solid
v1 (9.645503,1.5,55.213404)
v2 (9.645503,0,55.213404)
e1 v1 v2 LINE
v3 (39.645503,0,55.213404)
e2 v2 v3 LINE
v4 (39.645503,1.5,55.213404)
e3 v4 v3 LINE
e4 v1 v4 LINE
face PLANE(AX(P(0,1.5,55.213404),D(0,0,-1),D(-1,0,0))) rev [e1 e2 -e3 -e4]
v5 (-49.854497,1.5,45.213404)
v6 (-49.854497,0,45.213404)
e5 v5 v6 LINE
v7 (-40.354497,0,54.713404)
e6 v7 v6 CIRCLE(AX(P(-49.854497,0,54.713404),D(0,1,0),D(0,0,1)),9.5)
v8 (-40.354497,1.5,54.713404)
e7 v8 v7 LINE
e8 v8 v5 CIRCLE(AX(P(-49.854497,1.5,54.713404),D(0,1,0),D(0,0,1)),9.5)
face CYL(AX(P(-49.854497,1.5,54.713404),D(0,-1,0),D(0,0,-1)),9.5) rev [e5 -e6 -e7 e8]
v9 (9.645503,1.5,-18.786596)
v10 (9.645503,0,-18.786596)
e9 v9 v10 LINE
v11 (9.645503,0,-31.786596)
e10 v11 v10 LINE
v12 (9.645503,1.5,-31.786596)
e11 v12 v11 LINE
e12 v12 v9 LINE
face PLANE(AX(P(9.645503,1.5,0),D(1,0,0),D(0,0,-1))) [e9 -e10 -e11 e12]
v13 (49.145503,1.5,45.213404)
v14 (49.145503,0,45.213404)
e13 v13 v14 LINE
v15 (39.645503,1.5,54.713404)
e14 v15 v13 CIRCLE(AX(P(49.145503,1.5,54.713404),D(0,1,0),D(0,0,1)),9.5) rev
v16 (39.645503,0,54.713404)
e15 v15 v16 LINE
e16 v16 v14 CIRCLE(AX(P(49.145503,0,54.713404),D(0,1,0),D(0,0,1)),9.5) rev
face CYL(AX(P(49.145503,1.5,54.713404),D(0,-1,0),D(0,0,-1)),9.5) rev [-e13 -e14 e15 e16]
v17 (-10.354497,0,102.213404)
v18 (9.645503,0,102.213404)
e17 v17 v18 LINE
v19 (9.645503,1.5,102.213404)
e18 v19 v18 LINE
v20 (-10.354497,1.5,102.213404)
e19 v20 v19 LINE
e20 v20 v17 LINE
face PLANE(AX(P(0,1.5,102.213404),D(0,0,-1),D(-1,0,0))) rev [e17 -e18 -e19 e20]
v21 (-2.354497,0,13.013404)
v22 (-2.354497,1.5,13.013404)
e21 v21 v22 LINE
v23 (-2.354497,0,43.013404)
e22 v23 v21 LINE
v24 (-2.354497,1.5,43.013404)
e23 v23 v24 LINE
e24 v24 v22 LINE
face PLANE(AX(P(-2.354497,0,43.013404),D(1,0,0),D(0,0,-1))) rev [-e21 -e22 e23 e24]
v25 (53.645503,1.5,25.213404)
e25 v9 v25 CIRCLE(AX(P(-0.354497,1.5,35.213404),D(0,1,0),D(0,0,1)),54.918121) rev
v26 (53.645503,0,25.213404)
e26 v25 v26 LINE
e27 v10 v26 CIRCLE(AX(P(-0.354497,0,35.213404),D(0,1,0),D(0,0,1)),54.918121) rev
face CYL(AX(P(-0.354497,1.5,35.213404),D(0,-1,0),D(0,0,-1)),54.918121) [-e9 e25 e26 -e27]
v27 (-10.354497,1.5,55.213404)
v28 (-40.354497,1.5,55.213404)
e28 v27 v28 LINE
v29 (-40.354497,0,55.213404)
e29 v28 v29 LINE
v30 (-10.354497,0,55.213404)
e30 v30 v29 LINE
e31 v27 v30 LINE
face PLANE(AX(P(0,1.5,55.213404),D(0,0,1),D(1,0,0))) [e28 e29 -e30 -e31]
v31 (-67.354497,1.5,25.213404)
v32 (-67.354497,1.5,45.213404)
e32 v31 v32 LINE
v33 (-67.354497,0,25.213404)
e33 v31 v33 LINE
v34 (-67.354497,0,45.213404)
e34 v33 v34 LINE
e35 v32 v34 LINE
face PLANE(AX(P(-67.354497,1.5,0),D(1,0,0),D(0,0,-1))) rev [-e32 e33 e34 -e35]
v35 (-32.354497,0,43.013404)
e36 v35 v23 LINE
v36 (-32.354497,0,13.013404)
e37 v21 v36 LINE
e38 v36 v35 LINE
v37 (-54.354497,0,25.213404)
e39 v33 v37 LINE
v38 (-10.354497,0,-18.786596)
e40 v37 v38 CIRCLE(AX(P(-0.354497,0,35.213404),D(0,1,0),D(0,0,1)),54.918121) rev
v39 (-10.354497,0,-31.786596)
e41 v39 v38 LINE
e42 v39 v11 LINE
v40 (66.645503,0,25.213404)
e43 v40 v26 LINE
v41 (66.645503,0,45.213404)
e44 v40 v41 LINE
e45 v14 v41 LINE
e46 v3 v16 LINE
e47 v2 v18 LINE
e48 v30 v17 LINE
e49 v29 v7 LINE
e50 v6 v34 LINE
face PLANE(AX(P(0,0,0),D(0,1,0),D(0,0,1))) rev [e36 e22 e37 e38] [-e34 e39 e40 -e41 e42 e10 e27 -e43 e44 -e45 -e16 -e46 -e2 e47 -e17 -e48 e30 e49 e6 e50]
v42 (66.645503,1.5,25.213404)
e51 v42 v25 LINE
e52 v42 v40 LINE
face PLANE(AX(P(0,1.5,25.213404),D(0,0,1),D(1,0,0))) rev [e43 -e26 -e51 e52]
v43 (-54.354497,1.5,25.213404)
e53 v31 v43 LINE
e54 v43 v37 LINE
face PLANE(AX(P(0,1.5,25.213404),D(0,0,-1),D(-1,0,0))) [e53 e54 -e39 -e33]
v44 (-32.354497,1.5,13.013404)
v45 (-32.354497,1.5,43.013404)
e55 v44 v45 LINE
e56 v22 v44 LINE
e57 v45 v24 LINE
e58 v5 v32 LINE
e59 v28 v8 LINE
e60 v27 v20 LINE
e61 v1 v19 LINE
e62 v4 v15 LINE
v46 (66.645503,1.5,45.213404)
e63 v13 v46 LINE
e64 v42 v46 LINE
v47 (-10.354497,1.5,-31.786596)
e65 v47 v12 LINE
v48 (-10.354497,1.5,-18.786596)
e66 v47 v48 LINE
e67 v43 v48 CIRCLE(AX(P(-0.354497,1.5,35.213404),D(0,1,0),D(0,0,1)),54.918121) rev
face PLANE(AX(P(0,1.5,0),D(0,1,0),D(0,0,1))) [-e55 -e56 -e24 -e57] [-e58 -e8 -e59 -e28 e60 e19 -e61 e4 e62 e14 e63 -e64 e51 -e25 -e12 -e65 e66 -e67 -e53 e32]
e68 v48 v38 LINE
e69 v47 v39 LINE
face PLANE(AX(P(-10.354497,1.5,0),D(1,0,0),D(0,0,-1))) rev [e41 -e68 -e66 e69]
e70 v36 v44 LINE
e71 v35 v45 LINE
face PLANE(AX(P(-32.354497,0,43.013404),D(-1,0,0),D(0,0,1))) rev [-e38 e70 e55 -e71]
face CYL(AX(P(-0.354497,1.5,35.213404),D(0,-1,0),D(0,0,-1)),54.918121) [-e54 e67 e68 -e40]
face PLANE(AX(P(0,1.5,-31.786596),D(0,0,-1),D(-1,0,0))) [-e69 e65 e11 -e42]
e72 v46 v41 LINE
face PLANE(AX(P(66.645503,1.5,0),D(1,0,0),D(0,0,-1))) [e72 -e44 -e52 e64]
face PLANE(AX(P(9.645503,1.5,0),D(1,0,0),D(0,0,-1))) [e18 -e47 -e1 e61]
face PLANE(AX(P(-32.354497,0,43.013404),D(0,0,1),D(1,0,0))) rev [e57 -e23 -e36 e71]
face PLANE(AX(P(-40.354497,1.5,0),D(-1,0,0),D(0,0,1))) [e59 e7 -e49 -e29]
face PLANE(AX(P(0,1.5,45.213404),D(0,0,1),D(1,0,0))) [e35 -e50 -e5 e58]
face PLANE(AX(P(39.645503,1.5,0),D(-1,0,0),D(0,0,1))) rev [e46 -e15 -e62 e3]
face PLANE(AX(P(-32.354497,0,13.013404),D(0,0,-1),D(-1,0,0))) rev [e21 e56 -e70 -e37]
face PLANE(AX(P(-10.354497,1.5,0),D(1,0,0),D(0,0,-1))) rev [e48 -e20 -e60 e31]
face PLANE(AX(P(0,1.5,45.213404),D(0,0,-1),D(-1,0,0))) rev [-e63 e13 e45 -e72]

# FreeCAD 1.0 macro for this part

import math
import FreeCAD as App
import Part
import Sketcher

doc = App.newDocument("Part")
body = doc.addObject("PartDesign::Body", "Body")

# Sketch on XZ plane
sketch1 = body.newObject("Sketcher::SketchObject", "Sketch")
sketch1.AttachmentSupport = (doc.getObject("XZ_Plane"), [""])
sketch1.MapMode = "FlatFace"
sketch1.addGeometry(Part.LineSegment(App.Vector(-10.354497, 55.213404, 0), App.Vector(-10.354497, 102.213404, 0)), False)
sketch1.addGeometry(Part.LineSegment(App.Vector(-10.354497, 102.213404, 0), App.Vector(9.645503, 102.213404, 0)), False)
sketch1.addGeometry(Part.LineSegment(App.Vector(9.645503, 102.213404, 0), App.Vector(9.645503, 55.213404, 0)), False)
sketch1.addGeometry(Part.LineSegment(App.Vector(9.645503, 55.213404, 0), App.Vector(39.645503, 55.213404, 0)), False)
sketch1.addGeometry(Part.LineSegment(App.Vector(39.645503, 55.213404, 0), App.Vector(39.645503, 54.713404, 0)), False)
sketch1.addGeometry(Part.ArcOfCircle(Part.Circle(App.Vector(49.145503, 54.713404, 0), App.Vector(0, 0, 1), 9.5), math.radians(180), math.radians(270)), False)
sketch1.addGeometry(Part.LineSegment(App.Vector(49.145503, 45.213404, 0), App.Vector(66.645503, 45.213404, 0)), False)
sketch1.addGeometry(Part.LineSegment(App.Vector(66.645503, 45.213404, 0), App.Vector(66.645503, 25.213404, 0)), False)
sketch1.addGeometry(Part.LineSegment(App.Vector(66.645503, 25.213404, 0), App.Vector(53.645503, 25.213404, 0)), False)
sketch1.addGeometry(Part.ArcOfCircle(Part.Circle(App.Vector(-0.354497, 35.213404, 0), App.Vector(0, 0, 1), 54.918121), math.radians(-79.508523), math.radians(-10.491477)), False)
sketch1.addGeometry(Part.LineSegment(App.Vector(9.645503, -18.786596, 0), App.Vector(9.645503, -31.786596, 0)), False)
sketch1.addGeometry(Part.LineSegment(App.Vector(9.645503, -31.786596, 0), App.Vector(-10.354497, -31.786596, 0)), False)
sketch1.addGeometry(Part.LineSegment(App.Vector(-10.354497, -31.786596, 0), App.Vector(-10.354497, -18.786596, 0)), False)
sketch1.addGeometry(Part.ArcOfCircle(Part.Circle(App.Vector(-0.354497, 35.213404, 0), App.Vector(0, 0, 1), 54.918121), math.radians(-169.508523), math.radians(-100.491477)), False)
sketch1.addGeometry(Part.LineSegment(App.Vector(-54.354497, 25.213404, 0), App.Vector(-67.354497, 25.213404, 0)), False)
sketch1.addGeometry(Part.LineSegment(App.Vector(-67.354497, 25.213404, 0), App.Vector(-67.354497, 45.213404, 0)), False)
sketch1.addGeometry(Part.LineSegment(App.Vector(-67.354497, 45.213404, 0), App.Vector(-49.854497, 45.213404, 0)), False)
sketch1.addGeometry(Part.ArcOfCircle(Part.Circle(App.Vector(-49.854497, 54.713404, 0), App.Vector(0, 0, 1), 9.5), math.radians(-90), math.radians(0)), False)
sketch1.addGeometry(Part.LineSegment(App.Vector(-40.354497, 54.713404, 0), App.Vector(-40.354497, 55.213404, 0)), False)
sketch1.addGeometry(Part.LineSegment(App.Vector(-40.354497, 55.213404, 0), App.Vector(-10.354497, 55.213404, 0)), False)
sketch1.addConstraint(Sketcher.Constraint("Coincident", 0, 2, 1, 1))
sketch1.addConstraint(Sketcher.Constraint("Coincident", 1, 2, 2, 1))
sketch1.addConstraint(Sketcher.Constraint("Coincident", 2, 2, 3, 1))
sketch1.addConstraint(Sketcher.Constraint("Coincident", 3, 2, 4, 1))
sketch1.addConstraint(Sketcher.Constraint("Tangent", 4, 2, 5, 1))
sketch1.addConstraint(Sketcher.Constraint("Tangent", 5, 2, 6, 1))
sketch1.addConstraint(Sketcher.Constraint("Coincident", 6, 2, 7, 1))
sketch1.addConstraint(Sketcher.Constraint("Coincident", 7, 2, 8, 1))
sketch1.addConstraint(Sketcher.Constraint("Coincident", 8, 2, 9, 2))
sketch1.addConstraint(Sketcher.Constraint("Coincident", 9, 1, 10, 1))
sketch1.addConstraint(Sketcher.Constraint("Coincident", 10, 2, 11, 1))
sketch1.addConstraint(Sketcher.Constraint("Coincident", 11, 2, 12, 1))
sketch1.addConstraint(Sketcher.Constraint("Coincident", 12, 2, 13, 2))
sketch1.addConstraint(Sketcher.Constraint("Coincident", 13, 1, 14, 1))
sketch1.addConstraint(Sketcher.Constraint("Coincident", 14, 2, 15, 1))
sketch1.addConstraint(Sketcher.Constraint("Coincident", 15, 2, 16, 1))
sketch1.addConstraint(Sketcher.Constraint("Tangent", 16, 2, 17, 1))
sketch1.addConstraint(Sketcher.Constraint("Tangent", 17, 2, 18, 1))
sketch1.addConstraint(Sketcher.Constraint("Coincident", 18, 2, 19, 1))
sketch1.addConstraint(Sketcher.Constraint("Coincident", 19, 2, 0, 1))
sketch1.addConstraint(Sketcher.Constraint("Vertical", 0))
sketch1.addConstraint(Sketcher.Constraint("Horizontal", 1))
sketch1.addConstraint(Sketcher.Constraint("Vertical", 2))
sketch1.addConstraint(Sketcher.Constraint("Horizontal", 3))
sketch1.addConstraint(Sketcher.Constraint("Vertical", 4))
sketch1.addConstraint(Sketcher.Constraint("Horizontal", 6))
sketch1.addConstraint(Sketcher.Constraint("Vertical", 7))
sketch1.addConstraint(Sketcher.Constraint("Horizontal", 8))
sketch1.addConstraint(Sketcher.Constraint("Vertical", 10))
sketch1.addConstraint(Sketcher.Constraint("Horizontal", 11))
sketch1.addConstraint(Sketcher.Constraint("Vertical", 12))
sketch1.addConstraint(Sketcher.Constraint("Horizontal", 14))
sketch1.addConstraint(Sketcher.Constraint("Vertical", 15))
sketch1.addConstraint(Sketcher.Constraint("Horizontal", 16))
sketch1.addConstraint(Sketcher.Constraint("Vertical", 18))
sketch1.addConstraint(Sketcher.Constraint("Horizontal", 19))
sketch1.addConstraint(Sketcher.Constraint("Coincident", 13, 3, 9, 3))
sketch1.addConstraint(Sketcher.Constraint("Equal", 9, 13))
sketch1.addConstraint(Sketcher.Constraint("Equal", 5, 17))
sketch1.addConstraint(Sketcher.Constraint("Horizontal", 5, 3, 17, 3))
sketch1.addConstraint(Sketcher.Constraint("Horizontal", 9, 1, 12, 2))
sketch1.addConstraint(Sketcher.Constraint("Horizontal", 8, 2, 13, 1))
sketch1.addConstraint(Sketcher.Constraint("Horizontal", 3, 2, 18, 2))
sketch1.addConstraint(Sketcher.Constraint("Vertical", 2, 2, 9, 1))
sketch1.addConstraint(Sketcher.Constraint("Vertical", 0, 2, 11, 2))
sketch1.addConstraint(Sketcher.Constraint("Equal", 8, 14))
sketch1.addConstraint(Sketcher.Constraint("Equal", 6, 16))
sketch1.addConstraint(Sketcher.Constraint("Equal", 11, 7))
sketch1.addConstraint(Sketcher.Constraint("Equal", 14, 10))
sketch1.addConstraint(Sketcher.Constraint("Radius", 5, 9.5))
sketch1.addConstraint(Sketcher.Constraint("DistanceX", 1, 1, 1, 2, 20.0))
sketch1.addConstraint(Sketcher.Constraint("DistanceX", 3, 1, 3, 2, 30.0))
sketch1.addConstraint(Sketcher.Constraint("DistanceX", 8, 2, 8, 1, 13.0))
sketch1.addConstraint(Sketcher.Constraint("DistanceY", 0, 1, 0, 2, 47.0))
sketch1.addConstraint(Sketcher.Constraint("DistanceX", 6, 1, 6, 2, 17.5))
sketch1.addConstraint(Sketcher.Constraint("DistanceY", 4, 2, 4, 1, 0.5))
sketch1.addConstraint(Sketcher.Constraint("DistanceY", 9, 3, 0, 2, 67.0))
sketch1.addConstraint(Sketcher.Constraint("DistanceX", -1, 1, 5, 3, 49.145503))
sketch1.addConstraint(Sketcher.Constraint("DistanceY", -1, 1, 5, 3, 54.713404))
pad1 = body.newObject("PartDesign::Pad", "Pad")
pad1.Profile = sketch1
pad1.Length = 1.5
pad1.Reversed = True

# Sketch on XZ plane
sketch2 = body.newObject("Sketcher::SketchObject", "Sketch001")
sketch2.AttachmentSupport = (doc.getObject("XZ_Plane"), [""])
sketch2.MapMode = "FlatFace"
sketch2.AttachmentOffset = App.Placement(App.Vector(0, 0, -1.5), App.Rotation())
sketch2.addGeometry(Part.LineSegment(App.Vector(-32.354497, 13.013404, 0), App.Vector(-32.354497, 43.013404, 0)), False)
sketch2.addGeometry(Part.LineSegment(App.Vector(-32.354497, 43.013404, 0), App.Vector(-2.354497, 43.013404, 0)), False)
sketch2.addGeometry(Part.LineSegment(App.Vector(-2.354497, 43.013404, 0), App.Vector(-2.354497, 13.013404, 0)), False)
sketch2.addGeometry(Part.LineSegment(App.Vector(-2.354497, 13.013404, 0), App.Vector(-32.354497, 13.013404, 0)), False)
sketch2.addConstraint(Sketcher.Constraint("Coincident", 0, 2, 1, 1))
sketch2.addConstraint(Sketcher.Constraint("Coincident", 1, 2, 2, 1))
sketch2.addConstraint(Sketcher.Constraint("Coincident", 2, 2, 3, 1))
sketch2.addConstraint(Sketcher.Constraint("Coincident", 3, 2, 0, 1))
sketch2.addConstraint(Sketcher.Constraint("Vertical", 0))
sketch2.addConstraint(Sketcher.Constraint("Horizontal", 1))
sketch2.addConstraint(Sketcher.Constraint("Vertical", 2))
sketch2.addConstraint(Sketcher.Constraint("Horizontal", 3))
sketch2.addConstraint(Sketcher.Constraint("Equal", 3, 0))
sketch2.addConstraint(Sketcher.Constraint("DistanceX", 1, 1, 1, 2, 30.0))
sketch2.addConstraint(Sketcher.Constraint("DistanceX", 0, 2, -1, 1, 32.354497))
sketch2.addConstraint(Sketcher.Constraint("DistanceY", -1, 1, 0, 2, 43.013404))
pocket1 = body.newObject("PartDesign::Pocket", "Pocket")
pocket1.Profile = sketch2
pocket1.Type = "ThroughAll"
pocket1.Reversed = True

doc.recompute()
